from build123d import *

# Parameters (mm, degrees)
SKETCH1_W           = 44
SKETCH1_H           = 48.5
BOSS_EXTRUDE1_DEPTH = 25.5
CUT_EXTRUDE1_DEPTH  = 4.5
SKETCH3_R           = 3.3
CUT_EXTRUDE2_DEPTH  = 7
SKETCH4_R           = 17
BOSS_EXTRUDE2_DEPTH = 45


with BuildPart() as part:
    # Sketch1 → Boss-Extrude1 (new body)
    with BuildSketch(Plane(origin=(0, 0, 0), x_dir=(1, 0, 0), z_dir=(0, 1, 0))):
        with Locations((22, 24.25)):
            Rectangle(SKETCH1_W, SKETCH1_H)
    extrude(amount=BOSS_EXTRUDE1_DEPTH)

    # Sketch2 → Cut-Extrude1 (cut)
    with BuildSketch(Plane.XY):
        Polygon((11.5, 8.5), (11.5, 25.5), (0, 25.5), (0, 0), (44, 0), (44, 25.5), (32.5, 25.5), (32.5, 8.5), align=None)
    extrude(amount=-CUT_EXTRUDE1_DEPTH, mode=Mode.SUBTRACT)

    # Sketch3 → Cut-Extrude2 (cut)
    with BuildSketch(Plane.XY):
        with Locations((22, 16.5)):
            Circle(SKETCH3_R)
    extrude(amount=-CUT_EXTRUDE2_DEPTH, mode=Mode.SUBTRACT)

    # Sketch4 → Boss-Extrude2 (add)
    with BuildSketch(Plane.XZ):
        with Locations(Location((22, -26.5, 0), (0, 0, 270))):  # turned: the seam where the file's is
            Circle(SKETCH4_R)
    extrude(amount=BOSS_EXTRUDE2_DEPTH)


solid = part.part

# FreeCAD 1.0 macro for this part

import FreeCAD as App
import Part
import Sketcher

V = App.Vector


def add_polygon(sketch, points):
    """Adds a closed chain of lines whose ends are joined by coincident constraints."""
    first, n = sketch.GeometryCount, len(points)
    for a, b in zip(points, points[1:] + points[:1]):
        sketch.addGeometry(Part.LineSegment(App.Vector(*a, 0), App.Vector(*b, 0)), False)
    for i in range(n):
        sketch.addConstraint(Sketcher.Constraint("Coincident", first + i, 2, first + (i + 1) % n, 1))

doc = App.newDocument("Part")
body = doc.addObject("PartDesign::Body", "Body")

# Sketch on XZ plane
sketch1 = body.newObject("Sketcher::SketchObject", "Sketch")
sketch1.AttachmentSupport = (doc.getObject("XZ_Plane"), [""])
sketch1.MapMode = "FlatFace"
add_polygon(sketch1, [(0, -48), (0, 0), (44, 0), (44, -48)])  # lines 0-3
sketch1.addConstraint([
    Sketcher.Constraint("Vertical", 0),
    Sketcher.Constraint("Horizontal", 1),
    Sketcher.Constraint("Vertical", 2),
    Sketcher.Constraint("Horizontal", 3),
    Sketcher.Constraint("Coincident", 0, 2, -1, 1),
    Sketcher.Constraint("DistanceX", 1, 1, 1, 2, 44.0),
    Sketcher.Constraint("DistanceY", 0, 1, 0, 2, 48.5),
])
pad1 = body.newObject("PartDesign::Pad", "Pad")
pad1.Profile = sketch1
pad1.Length = 25.5
pad1.Reversed = True

# Sketch on XY plane
sketch2 = body.newObject("Sketcher::SketchObject", "Sketch001")
sketch2.AttachmentSupport = (doc.getObject("XY_Plane"), [""])
sketch2.MapMode = "FlatFace"
add_polygon(sketch2, [(12, 8), (12, 26), (0, 26), (0, 0), (44, 0), (44, 26), (32, 26), (32, 8)])  # lines 0-7
sketch2.addConstraint([
    Sketcher.Constraint("Vertical", 0),
    Sketcher.Constraint("Horizontal", 1),
    Sketcher.Constraint("Vertical", 2),
    Sketcher.Constraint("Horizontal", 3),
    Sketcher.Constraint("Vertical", 4),
    Sketcher.Constraint("Horizontal", 5),
    Sketcher.Constraint("Vertical", 6),
    Sketcher.Constraint("Horizontal", 7),
    Sketcher.Constraint("Coincident", 2, 2, -1, 1),
    Sketcher.Constraint("Horizontal", 1, 2, 4, 2),
    Sketcher.Constraint("Equal", 1, 5),
    Sketcher.Constraint("DistanceX", 3, 1, 3, 2, 44.0),
    Sketcher.Constraint("DistanceX", 7, 2, 7, 1, 21.0),
    Sketcher.Constraint("DistanceY", 0, 1, 0, 2, 17.0),
    Sketcher.Constraint("DistanceY", 2, 2, 2, 1, 25.5),
])
pocket1 = body.newObject("PartDesign::Pocket", "Pocket")
pocket1.Profile = sketch2
pocket1.Length = 4.5

# Sketch on XY plane
sketch3 = body.newObject("Sketcher::SketchObject", "Sketch002")
sketch3.AttachmentSupport = (doc.getObject("XY_Plane"), [""])
sketch3.MapMode = "FlatFace"
sketch3.addGeometry(Part.Circle(V(22, 16.5, 0), V(0, 0, 1), 3.3), False)
sketch3.addConstraint([
    Sketcher.Constraint("Diameter", 0, 6.6),
    Sketcher.Constraint("DistanceX", -1, 1, 0, 3, 22.0),
    Sketcher.Constraint("DistanceY", -1, 1, 0, 3, 16.5),
])
pocket2 = body.newObject("PartDesign::Pocket", "Pocket001")
pocket2.Profile = sketch3
pocket2.Length = 7

# Sketch on XZ plane
sketch4 = body.newObject("Sketcher::SketchObject", "Sketch003")
sketch4.AttachmentSupport = (doc.getObject("XZ_Plane"), [""])
sketch4.MapMode = "FlatFace"
sketch4.addGeometry(Part.Circle(V(22, -26, 0), V(0, 0, 1), 17), False)
sketch4.addConstraint([
    Sketcher.Constraint("Diameter", 0, 34.0),
    Sketcher.Constraint("DistanceX", -1, 1, 0, 3, 22.0),
    Sketcher.Constraint("DistanceY", 0, 3, -1, 1, 26.5),
])
pad2 = body.newObject("PartDesign::Pad", "Pad001")
pad2.Profile = sketch4
pad2.Length = 45

doc.recompute()
